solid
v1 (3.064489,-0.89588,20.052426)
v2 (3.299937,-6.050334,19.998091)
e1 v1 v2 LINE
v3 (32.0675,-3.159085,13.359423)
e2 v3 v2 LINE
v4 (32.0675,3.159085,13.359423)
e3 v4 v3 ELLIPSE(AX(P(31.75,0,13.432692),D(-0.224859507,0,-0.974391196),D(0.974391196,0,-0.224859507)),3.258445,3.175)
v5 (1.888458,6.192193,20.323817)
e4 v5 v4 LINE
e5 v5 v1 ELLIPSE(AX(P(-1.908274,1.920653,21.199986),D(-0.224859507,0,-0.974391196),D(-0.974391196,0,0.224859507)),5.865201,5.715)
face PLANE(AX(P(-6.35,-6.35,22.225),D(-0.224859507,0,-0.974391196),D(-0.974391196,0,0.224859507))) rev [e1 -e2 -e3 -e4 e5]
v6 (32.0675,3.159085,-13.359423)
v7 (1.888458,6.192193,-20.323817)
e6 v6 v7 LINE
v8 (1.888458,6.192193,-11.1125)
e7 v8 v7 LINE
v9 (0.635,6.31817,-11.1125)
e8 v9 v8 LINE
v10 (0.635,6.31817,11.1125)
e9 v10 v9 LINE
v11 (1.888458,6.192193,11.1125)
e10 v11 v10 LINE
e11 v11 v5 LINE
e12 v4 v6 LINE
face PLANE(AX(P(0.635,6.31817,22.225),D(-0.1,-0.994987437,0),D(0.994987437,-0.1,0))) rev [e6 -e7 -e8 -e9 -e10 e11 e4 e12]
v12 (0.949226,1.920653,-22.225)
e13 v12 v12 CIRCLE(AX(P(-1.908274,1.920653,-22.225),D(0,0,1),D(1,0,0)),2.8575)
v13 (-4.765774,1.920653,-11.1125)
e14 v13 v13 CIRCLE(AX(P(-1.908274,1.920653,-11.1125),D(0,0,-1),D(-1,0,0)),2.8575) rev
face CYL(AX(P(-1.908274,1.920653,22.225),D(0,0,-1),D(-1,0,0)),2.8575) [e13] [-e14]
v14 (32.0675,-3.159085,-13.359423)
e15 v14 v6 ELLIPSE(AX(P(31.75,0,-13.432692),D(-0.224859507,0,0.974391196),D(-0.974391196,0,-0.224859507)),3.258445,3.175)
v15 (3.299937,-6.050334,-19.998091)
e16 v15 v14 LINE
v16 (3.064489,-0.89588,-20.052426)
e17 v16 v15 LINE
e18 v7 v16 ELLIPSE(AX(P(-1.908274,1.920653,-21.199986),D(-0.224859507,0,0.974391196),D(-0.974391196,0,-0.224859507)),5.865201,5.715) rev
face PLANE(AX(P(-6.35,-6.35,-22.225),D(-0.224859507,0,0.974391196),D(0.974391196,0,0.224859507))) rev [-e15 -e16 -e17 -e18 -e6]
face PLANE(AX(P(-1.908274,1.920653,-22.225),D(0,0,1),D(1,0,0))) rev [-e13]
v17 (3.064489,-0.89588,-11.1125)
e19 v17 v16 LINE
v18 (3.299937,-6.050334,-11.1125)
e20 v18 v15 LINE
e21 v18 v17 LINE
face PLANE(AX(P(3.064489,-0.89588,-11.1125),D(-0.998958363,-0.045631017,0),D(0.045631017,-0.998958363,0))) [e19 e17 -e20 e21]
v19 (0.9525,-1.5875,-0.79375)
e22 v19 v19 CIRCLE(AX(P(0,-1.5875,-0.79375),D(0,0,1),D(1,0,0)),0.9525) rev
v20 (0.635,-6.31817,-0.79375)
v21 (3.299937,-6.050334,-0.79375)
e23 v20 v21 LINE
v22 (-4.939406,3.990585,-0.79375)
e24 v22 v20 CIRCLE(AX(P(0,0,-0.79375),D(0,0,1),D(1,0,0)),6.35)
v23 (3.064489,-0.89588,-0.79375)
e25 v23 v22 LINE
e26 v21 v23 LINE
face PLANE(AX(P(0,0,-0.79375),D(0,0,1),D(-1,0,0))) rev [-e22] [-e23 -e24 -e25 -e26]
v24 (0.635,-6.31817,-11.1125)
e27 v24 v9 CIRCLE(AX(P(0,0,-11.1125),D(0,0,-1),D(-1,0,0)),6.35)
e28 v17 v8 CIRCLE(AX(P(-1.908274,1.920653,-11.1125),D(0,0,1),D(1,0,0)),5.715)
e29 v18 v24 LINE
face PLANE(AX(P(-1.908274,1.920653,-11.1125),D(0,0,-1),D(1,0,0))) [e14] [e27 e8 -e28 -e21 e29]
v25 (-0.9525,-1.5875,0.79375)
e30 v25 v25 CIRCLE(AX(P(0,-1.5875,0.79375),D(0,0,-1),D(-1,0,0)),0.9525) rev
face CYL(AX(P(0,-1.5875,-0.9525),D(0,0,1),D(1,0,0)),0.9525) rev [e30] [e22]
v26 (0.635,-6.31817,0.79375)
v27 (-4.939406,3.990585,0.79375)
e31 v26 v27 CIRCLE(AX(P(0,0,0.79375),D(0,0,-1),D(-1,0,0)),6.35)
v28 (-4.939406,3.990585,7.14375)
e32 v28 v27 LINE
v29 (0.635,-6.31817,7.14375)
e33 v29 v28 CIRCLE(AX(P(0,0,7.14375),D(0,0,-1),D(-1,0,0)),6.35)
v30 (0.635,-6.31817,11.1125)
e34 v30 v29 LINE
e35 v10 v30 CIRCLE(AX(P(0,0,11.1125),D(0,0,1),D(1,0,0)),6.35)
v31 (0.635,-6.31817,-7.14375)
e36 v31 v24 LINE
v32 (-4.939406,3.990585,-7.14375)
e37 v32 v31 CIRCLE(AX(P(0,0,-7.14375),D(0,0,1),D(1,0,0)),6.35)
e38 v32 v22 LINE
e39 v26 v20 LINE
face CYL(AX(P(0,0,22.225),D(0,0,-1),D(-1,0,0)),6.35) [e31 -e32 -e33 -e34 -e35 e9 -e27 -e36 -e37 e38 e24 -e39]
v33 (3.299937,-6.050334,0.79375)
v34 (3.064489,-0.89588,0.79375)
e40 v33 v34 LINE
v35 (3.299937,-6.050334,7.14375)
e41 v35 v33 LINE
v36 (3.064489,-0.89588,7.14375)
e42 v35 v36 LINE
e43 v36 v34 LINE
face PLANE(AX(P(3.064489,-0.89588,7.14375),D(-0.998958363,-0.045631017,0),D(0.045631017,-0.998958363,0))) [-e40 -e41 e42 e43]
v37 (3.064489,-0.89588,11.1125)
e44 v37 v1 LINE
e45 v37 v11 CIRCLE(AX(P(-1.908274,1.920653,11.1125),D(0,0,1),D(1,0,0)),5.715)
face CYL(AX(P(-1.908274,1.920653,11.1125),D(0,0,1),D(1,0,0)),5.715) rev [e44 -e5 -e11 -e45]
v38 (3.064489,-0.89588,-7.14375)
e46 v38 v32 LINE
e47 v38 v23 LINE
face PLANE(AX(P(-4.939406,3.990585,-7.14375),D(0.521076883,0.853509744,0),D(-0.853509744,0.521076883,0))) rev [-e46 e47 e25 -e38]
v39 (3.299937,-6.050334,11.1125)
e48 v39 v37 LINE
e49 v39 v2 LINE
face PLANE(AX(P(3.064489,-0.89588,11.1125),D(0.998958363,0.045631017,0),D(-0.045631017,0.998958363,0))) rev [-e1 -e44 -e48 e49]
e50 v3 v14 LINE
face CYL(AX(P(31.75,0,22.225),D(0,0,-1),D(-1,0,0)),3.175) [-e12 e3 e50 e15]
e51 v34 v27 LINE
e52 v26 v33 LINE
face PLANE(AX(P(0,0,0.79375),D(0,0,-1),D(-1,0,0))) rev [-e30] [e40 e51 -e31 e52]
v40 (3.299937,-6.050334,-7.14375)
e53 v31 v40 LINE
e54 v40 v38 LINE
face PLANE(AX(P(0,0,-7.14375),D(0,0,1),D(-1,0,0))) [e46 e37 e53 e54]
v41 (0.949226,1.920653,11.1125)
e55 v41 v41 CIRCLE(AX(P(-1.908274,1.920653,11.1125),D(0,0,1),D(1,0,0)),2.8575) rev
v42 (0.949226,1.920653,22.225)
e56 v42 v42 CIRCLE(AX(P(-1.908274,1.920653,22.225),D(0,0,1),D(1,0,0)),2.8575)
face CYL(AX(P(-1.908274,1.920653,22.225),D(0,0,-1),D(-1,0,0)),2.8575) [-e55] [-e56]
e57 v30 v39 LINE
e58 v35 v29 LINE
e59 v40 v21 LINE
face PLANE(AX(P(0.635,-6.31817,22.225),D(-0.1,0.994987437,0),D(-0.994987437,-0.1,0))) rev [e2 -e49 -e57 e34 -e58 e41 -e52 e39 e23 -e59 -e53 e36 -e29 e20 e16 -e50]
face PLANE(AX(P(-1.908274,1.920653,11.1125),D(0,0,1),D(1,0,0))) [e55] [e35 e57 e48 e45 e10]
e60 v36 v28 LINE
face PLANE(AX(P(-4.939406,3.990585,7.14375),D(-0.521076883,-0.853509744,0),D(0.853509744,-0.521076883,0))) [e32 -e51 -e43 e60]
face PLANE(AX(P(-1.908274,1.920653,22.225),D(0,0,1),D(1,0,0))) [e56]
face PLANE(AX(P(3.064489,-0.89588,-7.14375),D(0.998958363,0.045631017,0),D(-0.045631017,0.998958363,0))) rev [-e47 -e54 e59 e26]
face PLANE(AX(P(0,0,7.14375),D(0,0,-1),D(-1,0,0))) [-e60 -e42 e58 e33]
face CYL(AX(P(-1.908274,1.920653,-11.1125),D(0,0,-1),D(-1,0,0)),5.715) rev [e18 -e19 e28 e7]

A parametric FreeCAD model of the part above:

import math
import FreeCAD as App
import Part
import Sketcher

V = App.Vector
Q = App.Units.Quantity


def add_polygon(sketch, points):
    """Adds a closed chain of lines whose ends are joined by coincident constraints."""
    first, n = sketch.GeometryCount, len(points)
    for a, b in zip(points, points[1:] + points[:1]):
        sketch.addGeometry(Part.LineSegment(App.Vector(*a, 0), App.Vector(*b, 0)), False)
    for i in range(n):
        sketch.addConstraint(Sketcher.Constraint("Coincident", first + i, 2, first + (i + 1) % n, 1))

doc = App.newDocument("Part")
params = doc.addObject("Spreadsheet::Sheet", "Params")
for row, (alias, value) in enumerate([
    ("sketch1_diameter", "0.2 in"),
    ("sketch1_radius", "0.25 in"),
    ("sketch1_radius2", "0.125 in"),
    ("pad1_length", "1.75 in"),
    ("sketch3_diameter", "0.075 in"),
    ("pocket2_length", "0.075 in"),
    ("sketch4_radius", "0.225 in"),
    ("pocket3_length", "0.5625 in"),
    ("sketch5_diameter", "0.225 in"),
    ("pad2_length", "1.75 in"),
    ("pocket4_length", "0.25 in"),
], start=1):
    params.set(f"A{row}", alias)
    params.set(f"B{row}", "=" + value)
    params.setAlias(f"B{row}", alias)

body = doc.addObject("PartDesign::Body", "Body")

sketch1 = doc.addObject("Sketcher::SketchObject", "Sketch")
body.addObject(sketch1)
sketch1.AttachmentSupport = (doc.XY_Plane, [""])
sketch1.MapMode = "FlatFace"
sketch1.addGeometry(Part.LineSegment(V(32.1, 3.2, 0), V(0.6, 6.3, 0)), False)
sketch1.addGeometry(Part.ArcOfCircle(Part.Circle(V(0, 0, 0), V(0, 0, 1), 6.3), math.radians(84), math.radians(276)), False)
sketch1.addGeometry(Part.LineSegment(V(0.6, -6.3, 0), V(32.1, -3.2, 0)), False)
sketch1.addGeometry(Part.ArcOfCircle(Part.Circle(V(31.8, 0, 0), V(0, 0, 1), 3.2), math.radians(-84), math.radians(84)), False)
sketch1.addGeometry(Part.Circle(V(-1.9, 1.9, 0), V(0, 0, 1), 2.5), False)
sketch1.addConstraint(Sketcher.Constraint("Tangent", 0, 2, 1, 1))
sketch1.addConstraint(Sketcher.Constraint("Tangent", 1, 2, 2, 1))
sketch1.addConstraint(Sketcher.Constraint("Tangent", 2, 2, 3, 1))
sketch1.addConstraint(Sketcher.Constraint("Tangent", 3, 2, 0, 1))
sketch1.addConstraint(Sketcher.Constraint("Coincident", 1, 3, -1, 1))
sketch1.addConstraint(Sketcher.Constraint("PointOnObject", 3, 3, -1))
sketch1.addConstraint(Sketcher.Constraint("Diameter", 4, Q("0.2 in")))
sketch1.addConstraint(Sketcher.Constraint("Radius", 1, Q("0.25 in")))
sketch1.addConstraint(Sketcher.Constraint("Radius", 3, Q("0.125 in")))
sketch1.addConstraint(Sketcher.Constraint("DistanceX", -1, 1, 3, 3, Q("1.25 in")))
sketch1.addConstraint(Sketcher.Constraint("DistanceX", 4, 3, -1, 1, Q("1.908274 mm")))
sketch1.addConstraint(Sketcher.Constraint("DistanceY", -1, 1, 4, 3, Q("1.920653 mm")))
sketch1.setExpression("Constraints[6]", "Params.sketch1_diameter")
sketch1.setExpression("Constraints[7]", "Params.sketch1_radius")
sketch1.setExpression("Constraints[8]", "Params.sketch1_radius2")
pad1 = doc.addObject("PartDesign::Pad", "Pad")
body.addObject(pad1)
pad1.Profile = sketch1
pad1.setExpression("Length", "Params.pad1_length")
pad1.Midplane = True

sketch2 = doc.addObject("Sketcher::SketchObject", "Sketch001")
body.addObject(sketch2)
sketch2.AttachmentSupport = (doc.XZ_Plane, [""])
sketch2.MapMode = "FlatFace"
add_polygon(sketch2, [(-6, -22), (35, -13), (35, -32)])
add_polygon(sketch2, [(35, 13), (-6, 22), (35, 38)])
sketch2.addConstraint(Sketcher.Constraint("Vertical", 1))
sketch2.addConstraint(Sketcher.Constraint("Vertical", 5))
sketch2.addConstraint(Sketcher.Constraint("Symmetric", 2, 2, 3, 2, -1))
sketch2.addConstraint(Sketcher.Constraint("Symmetric", 0, 2, 5, 2, -1))
sketch2.addConstraint(Sketcher.Constraint("DistanceY", 0, 2, 5, 2, Q("1 in")))
sketch2.addConstraint(Sketcher.Constraint("DistanceX", 2, 2, -1, 1, Q("0.25 in")))
sketch2.addConstraint(Sketcher.Constraint("DistanceY", 2, 2, 3, 2, Q("1.75 in")))
sketch2.addConstraint(Sketcher.Constraint("DistanceX", -1, 1, 0, 2, Q("1.375 in")))
sketch2.addConstraint(Sketcher.Constraint("DistanceY", 1, 2, 1, 1, Q("18.980919 mm")))
sketch2.addConstraint(Sketcher.Constraint("DistanceY", 5, 2, 5, 1, Q("24.936863 mm")))
pocket1 = doc.addObject("PartDesign::Pocket", "Pocket")
body.addObject(pocket1)
pocket1.Profile = sketch2
pocket1.Type = "ThroughAll"
pocket1.Midplane = True

sketch3 = doc.addObject("Sketcher::SketchObject", "Sketch002")
body.addObject(sketch3)
sketch3.AttachmentSupport = (doc.XY_Plane, [""])
sketch3.MapMode = "FlatFace"
sketch3.addGeometry(Part.Circle(V(0, -1.6, 0), V(0, 0, 1), 1), False)
sketch3.addConstraint(Sketcher.Constraint("PointOnObject", 0, 3, -2))
sketch3.addConstraint(Sketcher.Constraint("Diameter", 0, Q("0.075 in")))
sketch3.addConstraint(Sketcher.Constraint("DistanceY", 0, 3, -1, 1, Q("0.0625 in")))
sketch3.setExpression("Constraints[1]", "Params.sketch3_diameter")
pocket2 = doc.addObject("PartDesign::Pocket", "Pocket001")
body.addObject(pocket2)
pocket2.Profile = sketch3
pocket2.setExpression("Length", "Params.pocket2_length")
pocket2.Midplane = True

sketch4 = doc.addObject("Sketcher::SketchObject", "Sketch003")
body.addObject(sketch4)
sketch4.AttachmentSupport = (doc.XY_Plane, [""])
sketch4.MapMode = "FlatFace"
sketch4.AttachmentOffset = App.Placement(V(0, 0, 1 * 25.4), App.Rotation())
sketch4.addGeometry(Part.LineSegment(V(3, -6, 0), V(3, -1, 0)), False)
sketch4.addGeometry(Part.ArcOfCircle(Part.Circle(V(-2, 2, 0), V(0, 0, 1), 6), math.radians(-30), math.radians(180)), False)
sketch4.addGeometry(Part.LineSegment(V(-8, 2, 0), V(-8, -6, 0)), False)
sketch4.addGeometry(Part.LineSegment(V(-8, -6, 0), V(5, -13, 0)), False)
sketch4.addGeometry(Part.LineSegment(V(5, -13, 0), V(3, -6, 0)), False)
sketch4.addConstraint(Sketcher.Constraint("Coincident", 0, 2, 1, 1))
sketch4.addConstraint(Sketcher.Constraint("Tangent", 1, 2, 2, 1))
sketch4.addConstraint(Sketcher.Constraint("Coincident", 2, 2, 3, 1))
sketch4.addConstraint(Sketcher.Constraint("Coincident", 3, 2, 4, 1))
sketch4.addConstraint(Sketcher.Constraint("Coincident", 4, 2, 0, 1))
sketch4.addConstraint(Sketcher.Constraint("Vertical", 2))
sketch4.addConstraint(Sketcher.Constraint("Radius", 1, Q("0.225 in")))
sketch4.addConstraint(Sketcher.Constraint("DistanceY", 2, 2, 2, 1, Q("7.638982 mm")))
sketch4.addConstraint(Sketcher.Constraint("DistanceX", -1, 1, 3, 2, Q("5.210798 mm")))
sketch4.addConstraint(Sketcher.Constraint("Distance", 0, Q("5.159829 mm")))
sketch4.addConstraint(Sketcher.Constraint("DistanceX", -1, 1, 0, 2, Q("3.064489 mm")))
sketch4.addConstraint(Sketcher.Constraint("DistanceY", 0, 2, -1, 1, Q("0.89588 mm")))
sketch4.addConstraint(Sketcher.Constraint("DistanceY", 2, 2, -1, 1, Q("5.718329 mm")))
sketch4.addConstraint(Sketcher.Constraint("DistanceY", 3, 2, -1, 1, Q("13.210092 mm")))
sketch4.addConstraint(Sketcher.Constraint("DistanceX", 0, 2, 4, 2, Q("0.235448 mm")))
sketch4.setExpression("Constraints[6]", "Params.sketch4_radius")
pocket3 = doc.addObject("PartDesign::Pocket", "Pocket002")
body.addObject(pocket3)
pocket3.Profile = sketch4
pocket3.setExpression("Length", "Params.pocket3_length")
doc.recompute()

mirrored = doc.addObject("PartDesign::Mirrored", "Mirrored")
body.addObject(mirrored)
mirrored.Originals = [pocket3]
mirrored.MirrorPlane = (doc.XY_Plane, [""])
body.Tip = mirrored

sketch5 = doc.addObject("Sketcher::SketchObject", "Sketch004")
body.addObject(sketch5)
sketch5.AttachmentSupport = (doc.XY_Plane, [""])
sketch5.MapMode = "FlatFace"
sketch5.addGeometry(Part.Circle(V(-1.9, 1.9, 0), V(0, 0, 1), 2.9), False)
sketch5.addConstraint(Sketcher.Constraint("Diameter", 0, Q("0.225 in")))
sketch5.addConstraint(Sketcher.Constraint("DistanceX", 0, 3, -1, 1, Q("1.908274 mm")))
sketch5.addConstraint(Sketcher.Constraint("DistanceY", -1, 1, 0, 3, Q("1.920653 mm")))
sketch5.setExpression("Constraints[0]", "Params.sketch5_diameter")
pad2 = doc.addObject("PartDesign::Pad", "Pad001")
body.addObject(pad2)
pad2.Profile = sketch5
pad2.setExpression("Length", "Params.pad2_length")
pad2.Midplane = True

sketch6 = doc.addObject("Sketcher::SketchObject", "Sketch005")
body.addObject(sketch6)
sketch6.AttachmentSupport = (doc.XY_Plane, [""])
sketch6.MapMode = "FlatFace"
sketch6.AttachmentOffset = App.Placement(V(0, 0, 0.03125 * 25.4), App.Rotation())
add_polygon(sketch6, [(3, -1), (-5, 4), (-14, -8), (3, -6)])
sketch6.addConstraint(Sketcher.Constraint("Distance", 1, Q("15.20781 mm")))
sketch6.addConstraint(Sketcher.Constraint("Distance", 3, Q("5.159829 mm")))
sketch6.addConstraint(Sketcher.Constraint("DistanceX", 1, 2, -1, 1, Q("14.49658 mm")))
sketch6.addConstraint(Sketcher.Constraint("DistanceY", 1, 2, -1, 1, Q("7.838951 mm")))
sketch6.addConstraint(Sketcher.Constraint("DistanceX", -1, 1, 3, 2, Q("3.064489 mm")))
sketch6.addConstraint(Sketcher.Constraint("DistanceY", 3, 2, -1, 1, Q("0.89588 mm")))
sketch6.addConstraint(Sketcher.Constraint("DistanceY", 2, 2, 0, 2, Q("10.040918 mm")))
sketch6.addConstraint(Sketcher.Constraint("DistanceX", 3, 2, 2, 2, Q("0.235448 mm")))
pocket4 = doc.addObject("PartDesign::Pocket", "Pocket003")
body.addObject(pocket4)
pocket4.Profile = sketch6
pocket4.setExpression("Length", "Params.pocket4_length")
pocket4.Reversed = True
doc.recompute()

mirrored2 = doc.addObject("PartDesign::Mirrored", "Mirrored001")
body.addObject(mirrored2)
mirrored2.Originals = [pocket4]
mirrored2.MirrorPlane = (doc.XY_Plane, [""])
body.Tip = mirrored2

doc.recompute()
